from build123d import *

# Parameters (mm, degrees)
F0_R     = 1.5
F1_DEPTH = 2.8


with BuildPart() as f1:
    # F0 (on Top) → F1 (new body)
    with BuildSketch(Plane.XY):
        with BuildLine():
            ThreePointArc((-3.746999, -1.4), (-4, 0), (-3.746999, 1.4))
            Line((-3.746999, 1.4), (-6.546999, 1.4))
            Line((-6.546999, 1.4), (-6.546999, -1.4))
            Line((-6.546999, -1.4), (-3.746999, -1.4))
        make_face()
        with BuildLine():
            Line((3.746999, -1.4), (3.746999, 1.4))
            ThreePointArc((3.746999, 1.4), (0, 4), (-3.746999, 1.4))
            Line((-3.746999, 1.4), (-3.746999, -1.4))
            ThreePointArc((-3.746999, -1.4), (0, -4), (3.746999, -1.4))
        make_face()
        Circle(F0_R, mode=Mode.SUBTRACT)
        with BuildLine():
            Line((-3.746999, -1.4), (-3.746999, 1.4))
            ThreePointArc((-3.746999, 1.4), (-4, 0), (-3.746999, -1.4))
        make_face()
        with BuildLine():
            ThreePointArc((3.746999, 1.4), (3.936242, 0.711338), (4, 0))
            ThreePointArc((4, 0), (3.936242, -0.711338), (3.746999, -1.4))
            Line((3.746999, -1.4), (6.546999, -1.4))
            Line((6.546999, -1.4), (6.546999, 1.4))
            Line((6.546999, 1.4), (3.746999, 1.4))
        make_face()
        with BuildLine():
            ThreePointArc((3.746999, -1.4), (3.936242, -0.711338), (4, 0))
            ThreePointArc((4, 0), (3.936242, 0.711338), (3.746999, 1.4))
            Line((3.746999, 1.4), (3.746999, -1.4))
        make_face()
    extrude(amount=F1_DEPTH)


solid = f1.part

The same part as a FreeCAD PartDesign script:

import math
import FreeCAD as App
import Part
import Sketcher
Q = App.Units.Quantity

doc = App.newDocument("Part")
body = doc.addObject("PartDesign::Body", "Body")

# Sketch on XY plane
sketch1 = body.newObject("Sketcher::SketchObject", "Sketch")
sketch1.AttachmentSupport = (doc.getObject("XY_Plane"), [""])
sketch1.MapMode = "FlatFace"
sketch1.addGeometry([
    Part.LineSegment(App.Vector(-3.7, 1.4, 0), App.Vector(-6.5, 1.4, 0)),  # 0
    Part.LineSegment(App.Vector(-6.5, 1.4, 0), App.Vector(-6.5, -1.4, 0)),  # 1
    Part.LineSegment(App.Vector(-6.5, -1.4, 0), App.Vector(-3.7, -1.4, 0)),  # 2
    Part.ArcOfCircle(Part.Circle(App.Vector(0, 0, 0), App.Vector(0, 0, 1), 4), math.radians(-160), math.radians(-20)),  # 3
    Part.LineSegment(App.Vector(3.7, -1.4, 0), App.Vector(6.5, -1.4, 0)),  # 4
    Part.LineSegment(App.Vector(6.5, -1.4, 0), App.Vector(6.5, 1.4, 0)),  # 5
    Part.LineSegment(App.Vector(6.5, 1.4, 0), App.Vector(3.7, 1.4, 0)),  # 6
    Part.ArcOfCircle(Part.Circle(App.Vector(0, 0, 0), App.Vector(0, 0, 1), 4), math.radians(20), math.radians(160)),  # 7
    Part.Circle(App.Vector(0, 0, 0), App.Vector(0, 0, 1), 1.5),  # 8
], False)
sketch1.addConstraint([
    Sketcher.Constraint("Coincident", 0, 2, 1, 1),
    Sketcher.Constraint("Coincident", 1, 2, 2, 1),
    Sketcher.Constraint("Coincident", 2, 2, 3, 1),
    Sketcher.Constraint("Coincident", 3, 2, 4, 1),
    Sketcher.Constraint("Coincident", 4, 2, 5, 1),
    Sketcher.Constraint("Coincident", 5, 2, 6, 1),
    Sketcher.Constraint("Coincident", 6, 2, 7, 1),
    Sketcher.Constraint("Coincident", 7, 2, 0, 1),
    Sketcher.Constraint("Horizontal", 0),
    Sketcher.Constraint("Vertical", 1),
    Sketcher.Constraint("Horizontal", 2),
    Sketcher.Constraint("Horizontal", 4),
    Sketcher.Constraint("Vertical", 5),
    Sketcher.Constraint("Horizontal", 6),
    Sketcher.Constraint("Coincident", 3, 3, -1, 1),
    Sketcher.Constraint("Coincident", 7, 3, -1, 1),
    Sketcher.Constraint("Coincident", 8, 3, -1, 1),
    Sketcher.Constraint("Equal", 3, 7),
    Sketcher.Constraint("Symmetric", 0, 2, 4, 2, -1, 1),
    Sketcher.Constraint("Horizontal", 2, 2, 3, 2),
    Sketcher.Constraint("Horizontal", 0, 2, 5, 2),
    Sketcher.Constraint("Equal", 6, 1),
    Sketcher.Constraint("Diameter", 8, Q("3 mm")),
    Sketcher.Constraint("Radius", 3, Q("4 mm")),
    Sketcher.Constraint("DistanceX", 0, 2, 0, 1, Q("2.8 mm")),
])
pad1 = body.newObject("PartDesign::Pad", "Pad")
pad1.Profile = sketch1
pad1.Length = 2.8

doc.recompute()
